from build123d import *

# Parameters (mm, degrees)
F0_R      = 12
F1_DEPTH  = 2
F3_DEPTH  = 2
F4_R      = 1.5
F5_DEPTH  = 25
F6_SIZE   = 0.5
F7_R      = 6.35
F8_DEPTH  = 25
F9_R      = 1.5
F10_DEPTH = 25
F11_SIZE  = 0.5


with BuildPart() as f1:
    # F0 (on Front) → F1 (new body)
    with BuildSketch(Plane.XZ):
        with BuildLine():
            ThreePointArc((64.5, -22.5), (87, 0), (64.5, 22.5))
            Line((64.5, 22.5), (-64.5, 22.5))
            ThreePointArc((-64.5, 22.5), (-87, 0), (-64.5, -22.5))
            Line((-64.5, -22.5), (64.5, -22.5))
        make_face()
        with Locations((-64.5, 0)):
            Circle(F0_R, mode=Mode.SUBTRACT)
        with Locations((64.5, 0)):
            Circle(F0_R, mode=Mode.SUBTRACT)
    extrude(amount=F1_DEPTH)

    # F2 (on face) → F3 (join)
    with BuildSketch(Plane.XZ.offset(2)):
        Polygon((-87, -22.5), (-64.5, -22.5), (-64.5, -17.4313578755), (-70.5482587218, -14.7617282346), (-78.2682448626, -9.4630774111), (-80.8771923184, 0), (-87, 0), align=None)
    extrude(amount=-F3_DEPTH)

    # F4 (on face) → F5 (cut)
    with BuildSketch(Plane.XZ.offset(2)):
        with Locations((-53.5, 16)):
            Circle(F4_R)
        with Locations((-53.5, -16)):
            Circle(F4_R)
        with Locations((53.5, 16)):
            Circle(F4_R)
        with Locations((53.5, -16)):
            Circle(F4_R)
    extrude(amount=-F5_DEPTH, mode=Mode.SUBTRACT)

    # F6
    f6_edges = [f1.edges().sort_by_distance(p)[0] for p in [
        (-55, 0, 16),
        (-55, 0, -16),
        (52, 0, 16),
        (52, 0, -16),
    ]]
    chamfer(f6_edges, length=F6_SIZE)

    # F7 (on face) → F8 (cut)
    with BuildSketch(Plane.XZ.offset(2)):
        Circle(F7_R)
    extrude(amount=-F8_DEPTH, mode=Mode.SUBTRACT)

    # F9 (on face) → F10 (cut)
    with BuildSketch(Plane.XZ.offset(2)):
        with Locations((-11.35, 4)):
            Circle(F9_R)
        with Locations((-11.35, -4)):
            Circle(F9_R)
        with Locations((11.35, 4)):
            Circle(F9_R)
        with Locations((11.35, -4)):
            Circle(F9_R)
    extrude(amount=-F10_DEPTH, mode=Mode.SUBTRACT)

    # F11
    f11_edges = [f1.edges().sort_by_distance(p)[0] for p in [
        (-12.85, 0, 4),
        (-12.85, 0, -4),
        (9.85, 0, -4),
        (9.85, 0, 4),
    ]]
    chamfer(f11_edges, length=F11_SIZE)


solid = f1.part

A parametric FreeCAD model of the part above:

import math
import FreeCAD as App
import Part
import Sketcher
from FreeCAD import Vector


def edges_at(feature, points):
    """Names of the edges that pass closest to the given points."""
    edges = feature.Shape.Edges
    near = lambda p: min(range(len(edges)), key=lambda i: edges[i].distToShape(Part.Vertex(*p))[0])
    return sorted({f"Edge{near(p) + 1}" for p in points})


def add_polygon(sketch, points):
    """Adds a closed chain of lines whose ends are joined by coincident constraints."""
    first, n = sketch.GeometryCount, len(points)
    for a, b in zip(points, points[1:] + points[:1]):
        sketch.addGeometry(Part.LineSegment(App.Vector(*a, 0), App.Vector(*b, 0)), False)
    for i in range(n):
        sketch.addConstraint(Sketcher.Constraint("Coincident", first + i, 2, first + (i + 1) % n, 1))

doc = App.newDocument("Part")
params = doc.addObject("Spreadsheet::Sheet", "Params")
for row, (alias, value) in enumerate([
    ("sketch1_diameter", "24 mm"),
    ("sketch1_radius", "22.5 mm"),
    ("sketch1_width", "129 mm"),
    ("pad1_length", "2 mm"),
    ("sketch2_width", "22.5 mm"),
    ("pad2_length", "2 mm"),
    ("sketch3_diameter", "3 mm"),
    ("pocket1_length", "25 mm"),
    ("chamfer_size", "0.5 mm"),
    ("sketch4_diameter", "12.7 mm"),
    ("pocket2_length", "25 mm"),
    ("sketch5_diameter", "3 mm"),
    ("pocket3_length", "25 mm"),
    ("chamfer2_size", "0.5 mm"),
], start=1):
    params.set(f"A{row}", alias)
    params.set(f"B{row}", "=" + value)
    params.setAlias(f"B{row}", alias)

body = doc.addObject("PartDesign::Body", "Body")

sketch1 = body.newObject("Sketcher::SketchObject", "Sketch")
sketch1.AttachmentSupport = (doc.getObject("XZ_Plane"), [""])
sketch1.MapMode = "FlatFace"
sketch1.addGeometry([
    Part.ArcOfCircle(Part.Circle(Vector(64, 0, 0), Vector(0, 0, 1), 22), math.radians(-90), math.radians(90)),
    Part.LineSegment(Vector(64, 22, 0), Vector(-64, 22, 0)),
    Part.ArcOfCircle(Part.Circle(Vector(-64, 0, 0), Vector(0, 0, 1), 22), math.radians(90), math.radians(270)),
    Part.LineSegment(Vector(-64, -22, 0), Vector(64, -22, 0)),
    Part.Circle(Vector(-64, 0, 0), Vector(0, 0, 1), 12),
    Part.Circle(Vector(64, 0, 0), Vector(0, 0, 1), 12),
], False)
sketch1.addConstraint([
    Sketcher.Constraint("Tangent", 0, 2, 1, 1),
    Sketcher.Constraint("Tangent", 1, 2, 2, 1),
    Sketcher.Constraint("Tangent", 2, 2, 3, 1),
    Sketcher.Constraint("Tangent", 3, 2, 0, 1),
    Sketcher.Constraint("Horizontal", 1),
    Sketcher.Constraint("Horizontal", 3),
    Sketcher.Constraint("Coincident", 4, 3, 2, 3),
    Sketcher.Constraint("Coincident", 5, 3, 0, 3),
    Sketcher.Constraint("Equal", 4, 5),
    Sketcher.Constraint("Symmetric", 0, 3, 2, 3, -1, 1),
    Sketcher.Constraint("Diameter", 4, 24.0),
    Sketcher.Constraint("Radius", 0, 22.5),
    Sketcher.Constraint("DistanceX", 1, 2, 1, 1, 129.0),
])
sketch1.setExpression("Constraints[10]", "Params.sketch1_diameter")
sketch1.setExpression("Constraints[11]", "Params.sketch1_radius")
sketch1.setExpression("Constraints[12]", "Params.sketch1_width")
pad1 = body.newObject("PartDesign::Pad", "Pad")
pad1.Profile = sketch1
pad1.setExpression("Length", "Params.pad1_length")

sketch2 = body.newObject("Sketcher::SketchObject", "Sketch001")
sketch2.AttachmentSupport = (doc.getObject("XZ_Plane"), [""])
sketch2.MapMode = "FlatFace"
sketch2.AttachmentOffset = App.Placement(Vector(0, 0, 2), App.Rotation())
add_polygon(sketch2, [(-87, -22), (-64, -22), (-64, -17), (-71, -15), (-78, -9), (-81, 0), (-87, 0)])
sketch2.addConstraint([
    Sketcher.Constraint("Horizontal", 0),
    Sketcher.Constraint("Vertical", 1),
    Sketcher.Constraint("Horizontal", 5),
    Sketcher.Constraint("Vertical", 6),
    Sketcher.Constraint("PointOnObject", 4, 2, -1),
    Sketcher.Constraint("Equal", 0, 6),
    Sketcher.Constraint("DistanceX", 0, 1, 0, 2, 22.5),
    Sketcher.Constraint("DistanceX", 5, 2, -1, 1, 87.0),
    Sketcher.Constraint("Distance", 2, 6.61123),
    Sketcher.Constraint("Distance", 4, 9.816132),
    Sketcher.Constraint("DistanceX", 5, 2, 5, 1, 6.122808),
    Sketcher.Constraint("DistanceY", 1, 1, 1, 2, 5.068642),
    Sketcher.Constraint("DistanceX", 2, 2, -1, 1, 70.548259),
    Sketcher.Constraint("DistanceY", 2, 2, 3, 2, 5.298651),
])
sketch2.setExpression("Constraints[13]", "Params.sketch2_width")
pad2 = body.newObject("PartDesign::Pad", "Pad001")
pad2.Profile = sketch2
pad2.setExpression("Length", "Params.pad2_length")
pad2.Reversed = True

sketch3 = body.newObject("Sketcher::SketchObject", "Sketch002")
sketch3.AttachmentSupport = (doc.getObject("XZ_Plane"), [""])
sketch3.MapMode = "FlatFace"
sketch3.AttachmentOffset = App.Placement(Vector(0, 0, 2), App.Rotation())
sketch3.addGeometry([
    Part.Circle(Vector(-53.5, 16, 0), Vector(0, 0, 1), 1.5),
    Part.Circle(Vector(-53.5, -16, 0), Vector(0, 0, 1), 1.5),
    Part.Circle(Vector(53.5, 16, 0), Vector(0, 0, 1), 1.5),
    Part.Circle(Vector(53.5, -16, 0), Vector(0, 0, 1), 1.5),
], False)
sketch3.addConstraint([
    Sketcher.Constraint("Equal", 0, 1),
    Sketcher.Constraint("Equal", 1, 2),
    Sketcher.Constraint("Equal", 2, 3),
    Sketcher.Constraint("Symmetric", 1, 3, 2, 3, -1, 1),
    Sketcher.Constraint("Symmetric", 0, 3, 3, 3, -1, 1),
    Sketcher.Constraint("Symmetric", 0, 3, 2, 3, -2),
    Sketcher.Constraint("Diameter", 0, 3.0),
    Sketcher.Constraint("DistanceY", -1, 1, 0, 3, 16.0),
    Sketcher.Constraint("DistanceX", 0, 3, 2, 3, 107.0),
])
sketch3.setExpression("Constraints[6]", "Params.sketch3_diameter")
pocket1 = body.newObject("PartDesign::Pocket", "Pocket")
pocket1.Profile = sketch3
pocket1.setExpression("Length", "Params.pocket1_length")
doc.recompute()

chamfer = body.newObject("PartDesign::Chamfer", "Chamfer")
chamfer.Base = (pocket1, edges_at(pocket1, [
    (-55, 0, 16),
    (-55, 0, -16),
    (52, 0, 16),
    (52, 0, -16),
]))
chamfer.setExpression("Size", "Params.chamfer_size")

sketch4 = body.newObject("Sketcher::SketchObject", "Sketch003")
sketch4.AttachmentSupport = (doc.getObject("XZ_Plane"), [""])
sketch4.MapMode = "FlatFace"
sketch4.AttachmentOffset = App.Placement(Vector(0, 0, 2), App.Rotation())
sketch4.addGeometry(Part.Circle(Vector(0, 0, 0), Vector(0, 0, 1), 6), False)
sketch4.addConstraint([
    Sketcher.Constraint("Coincident", 0, 3, -1, 1),
    Sketcher.Constraint("Diameter", 0, 12.7),
])
sketch4.setExpression("Constraints[1]", "Params.sketch4_diameter")
pocket2 = body.newObject("PartDesign::Pocket", "Pocket001")
pocket2.Profile = sketch4
pocket2.setExpression("Length", "Params.pocket2_length")

sketch5 = body.newObject("Sketcher::SketchObject", "Sketch004")
sketch5.AttachmentSupport = (doc.getObject("XZ_Plane"), [""])
sketch5.MapMode = "FlatFace"
sketch5.AttachmentOffset = App.Placement(Vector(0, 0, 2), App.Rotation())
sketch5.addGeometry([
    Part.Circle(Vector(-11.3, 4, 0), Vector(0, 0, 1), 1.5),
    Part.Circle(Vector(-11.3, -4, 0), Vector(0, 0, 1), 1.5),
    Part.Circle(Vector(11.3, 4, 0), Vector(0, 0, 1), 1.5),
    Part.Circle(Vector(11.3, -4, 0), Vector(0, 0, 1), 1.5),
], False)
sketch5.addConstraint([
    Sketcher.Constraint("Equal", 0, 1),
    Sketcher.Constraint("Equal", 1, 2),
    Sketcher.Constraint("Equal", 2, 3),
    Sketcher.Constraint("Symmetric", 1, 3, 2, 3, -1, 1),
    Sketcher.Constraint("Symmetric", 0, 3, 3, 3, -1, 1),
    Sketcher.Constraint("Symmetric", 0, 3, 2, 3, -2),
    Sketcher.Constraint("Diameter", 0, 3.0),
    Sketcher.Constraint("DistanceY", -1, 1, 0, 3, 4.0),
    Sketcher.Constraint("DistanceX", 0, 3, 2, 3, 22.7),
])
sketch5.setExpression("Constraints[6]", "Params.sketch5_diameter")
pocket3 = body.newObject("PartDesign::Pocket", "Pocket002")
pocket3.Profile = sketch5
pocket3.setExpression("Length", "Params.pocket3_length")
doc.recompute()

chamfer2 = body.newObject("PartDesign::Chamfer", "Chamfer001")
chamfer2.Base = (pocket3, edges_at(pocket3, [
    (-12.85, 0, 4),
    (-12.85, 0, -4),
    (9.85, 0, -4),
    (9.85, 0, 4),
]))
chamfer2.setExpression("Size", "Params.chamfer2_size")

doc.recompute()
